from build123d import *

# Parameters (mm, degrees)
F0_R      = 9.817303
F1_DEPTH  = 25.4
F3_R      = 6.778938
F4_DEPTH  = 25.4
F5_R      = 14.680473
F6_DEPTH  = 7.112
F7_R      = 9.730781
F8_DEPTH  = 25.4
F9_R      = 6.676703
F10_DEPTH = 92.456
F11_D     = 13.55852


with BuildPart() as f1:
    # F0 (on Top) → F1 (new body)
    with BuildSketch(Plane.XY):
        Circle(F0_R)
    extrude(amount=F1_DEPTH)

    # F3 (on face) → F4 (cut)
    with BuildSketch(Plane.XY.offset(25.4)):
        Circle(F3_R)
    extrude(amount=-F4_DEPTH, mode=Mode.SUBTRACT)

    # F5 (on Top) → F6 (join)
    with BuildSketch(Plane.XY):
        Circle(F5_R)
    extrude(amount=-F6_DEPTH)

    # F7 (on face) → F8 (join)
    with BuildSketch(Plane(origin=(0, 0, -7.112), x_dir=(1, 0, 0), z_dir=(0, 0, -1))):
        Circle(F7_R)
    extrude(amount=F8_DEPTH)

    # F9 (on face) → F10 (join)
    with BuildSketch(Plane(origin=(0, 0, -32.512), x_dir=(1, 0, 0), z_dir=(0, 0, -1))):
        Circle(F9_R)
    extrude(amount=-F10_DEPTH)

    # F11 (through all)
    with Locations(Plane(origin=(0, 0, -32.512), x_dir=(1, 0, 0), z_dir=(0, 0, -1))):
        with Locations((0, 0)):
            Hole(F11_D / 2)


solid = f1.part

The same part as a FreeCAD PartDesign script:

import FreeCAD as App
import Part
import Sketcher
Q = App.Units.Quantity

doc = App.newDocument("Part")
body = doc.addObject("PartDesign::Body", "Body")

# Sketch on XY plane
sketch1 = body.newObject("Sketcher::SketchObject", "Sketch")
sketch1.AttachmentSupport = (doc.getObject("XY_Plane"), [""])
sketch1.MapMode = "FlatFace"
sketch1.addGeometry(Part.Circle(App.Vector(0, 0, 0), App.Vector(0, 0, 1), 10), False)
sketch1.addConstraint(Sketcher.Constraint("Coincident", 0, 3, -1, 1))
sketch1.addConstraint(Sketcher.Constraint("Diameter", 0, Q("19.634606 mm")))
pad1 = body.newObject("PartDesign::Pad", "Pad")
pad1.Profile = sketch1
pad1.Length = Q("1 in")

# Sketch on XY plane
sketch2 = body.newObject("Sketcher::SketchObject", "Sketch001")
sketch2.AttachmentSupport = (doc.getObject("XY_Plane"), [""])
sketch2.MapMode = "FlatFace"
sketch2.AttachmentOffset = App.Placement(App.Vector(0, 0, 1 * 25.4), App.Rotation())
sketch2.addGeometry(Part.Circle(App.Vector(0, 0, 0), App.Vector(0, 0, 1), 7), False)
sketch2.addConstraint(Sketcher.Constraint("Coincident", 0, 3, -1, 1))
sketch2.addConstraint(Sketcher.Constraint("Diameter", 0, Q("13.557876 mm")))
pocket1 = body.newObject("PartDesign::Pocket", "Pocket")
pocket1.Profile = sketch2
pocket1.Length = Q("1 in")

# Sketch on XY plane
sketch3 = body.newObject("Sketcher::SketchObject", "Sketch002")
sketch3.AttachmentSupport = (doc.getObject("XY_Plane"), [""])
sketch3.MapMode = "FlatFace"
sketch3.addGeometry(Part.Circle(App.Vector(0, 0, 0), App.Vector(0, 0, 1), 15), False)
sketch3.addConstraint(Sketcher.Constraint("Coincident", 0, 3, -1, 1))
sketch3.addConstraint(Sketcher.Constraint("Diameter", 0, Q("29.360946 mm")))
pad2 = body.newObject("PartDesign::Pad", "Pad001")
pad2.Profile = sketch3
pad2.Length = Q("0.28 in")
pad2.Reversed = True

# Sketch on XY plane
sketch4 = body.newObject("Sketcher::SketchObject", "Sketch003")
sketch4.AttachmentSupport = (doc.getObject("XY_Plane"), [""])
sketch4.MapMode = "FlatFace"
sketch4.AttachmentOffset = App.Placement(App.Vector(0, 0, -0.28 * 25.4), App.Rotation())
sketch4.addGeometry(Part.Circle(App.Vector(0, 0, 0), App.Vector(0, 0, 1), 10), False)
sketch4.addConstraint(Sketcher.Constraint("Coincident", 0, 3, -1, 1))
sketch4.addConstraint(Sketcher.Constraint("Diameter", 0, Q("19.461562 mm")))
pad3 = body.newObject("PartDesign::Pad", "Pad002")
pad3.Profile = sketch4
pad3.Length = Q("1 in")
pad3.Reversed = True

# Sketch on XY plane
sketch5 = body.newObject("Sketcher::SketchObject", "Sketch004")
sketch5.AttachmentSupport = (doc.getObject("XY_Plane"), [""])
sketch5.MapMode = "FlatFace"
sketch5.AttachmentOffset = App.Placement(App.Vector(0, 0, -1.28 * 25.4), App.Rotation())
sketch5.addGeometry(Part.Circle(App.Vector(0, 0, 0), App.Vector(0, 0, 1), 7), False)
sketch5.addConstraint(Sketcher.Constraint("Coincident", 0, 3, -1, 1))
sketch5.addConstraint(Sketcher.Constraint("Diameter", 0, Q("13.353406 mm")))
pad4 = body.newObject("PartDesign::Pad", "Pad003")
pad4.Profile = sketch5
pad4.Length = Q("3.64 in")

# Sketch on XY plane
sketch6 = body.newObject("Sketcher::SketchObject", "Sketch005")
sketch6.AttachmentSupport = (doc.getObject("XY_Plane"), [""])
sketch6.MapMode = "FlatFace"
sketch6.AttachmentOffset = App.Placement(App.Vector(0, 0, -1.28 * 25.4), App.Rotation())
sketch6.addGeometry(Part.Circle(App.Vector(0, 0, 0), App.Vector(0, 0, 1), 7), False)
sketch6.addConstraint(Sketcher.Constraint("Coincident", 0, 3, -1, 1))
sketch6.addConstraint(Sketcher.Constraint("Diameter", 0, Q("0.5338 in")))
doc.recompute()
hole = body.newObject("PartDesign::Hole", "Hole")
hole.Profile = sketch6
hole.ThreadType = "None"
hole.Diameter = Q("0.5338 in")
hole.DepthType = "ThroughAll"
hole.Reversed = True

doc.recompute()
